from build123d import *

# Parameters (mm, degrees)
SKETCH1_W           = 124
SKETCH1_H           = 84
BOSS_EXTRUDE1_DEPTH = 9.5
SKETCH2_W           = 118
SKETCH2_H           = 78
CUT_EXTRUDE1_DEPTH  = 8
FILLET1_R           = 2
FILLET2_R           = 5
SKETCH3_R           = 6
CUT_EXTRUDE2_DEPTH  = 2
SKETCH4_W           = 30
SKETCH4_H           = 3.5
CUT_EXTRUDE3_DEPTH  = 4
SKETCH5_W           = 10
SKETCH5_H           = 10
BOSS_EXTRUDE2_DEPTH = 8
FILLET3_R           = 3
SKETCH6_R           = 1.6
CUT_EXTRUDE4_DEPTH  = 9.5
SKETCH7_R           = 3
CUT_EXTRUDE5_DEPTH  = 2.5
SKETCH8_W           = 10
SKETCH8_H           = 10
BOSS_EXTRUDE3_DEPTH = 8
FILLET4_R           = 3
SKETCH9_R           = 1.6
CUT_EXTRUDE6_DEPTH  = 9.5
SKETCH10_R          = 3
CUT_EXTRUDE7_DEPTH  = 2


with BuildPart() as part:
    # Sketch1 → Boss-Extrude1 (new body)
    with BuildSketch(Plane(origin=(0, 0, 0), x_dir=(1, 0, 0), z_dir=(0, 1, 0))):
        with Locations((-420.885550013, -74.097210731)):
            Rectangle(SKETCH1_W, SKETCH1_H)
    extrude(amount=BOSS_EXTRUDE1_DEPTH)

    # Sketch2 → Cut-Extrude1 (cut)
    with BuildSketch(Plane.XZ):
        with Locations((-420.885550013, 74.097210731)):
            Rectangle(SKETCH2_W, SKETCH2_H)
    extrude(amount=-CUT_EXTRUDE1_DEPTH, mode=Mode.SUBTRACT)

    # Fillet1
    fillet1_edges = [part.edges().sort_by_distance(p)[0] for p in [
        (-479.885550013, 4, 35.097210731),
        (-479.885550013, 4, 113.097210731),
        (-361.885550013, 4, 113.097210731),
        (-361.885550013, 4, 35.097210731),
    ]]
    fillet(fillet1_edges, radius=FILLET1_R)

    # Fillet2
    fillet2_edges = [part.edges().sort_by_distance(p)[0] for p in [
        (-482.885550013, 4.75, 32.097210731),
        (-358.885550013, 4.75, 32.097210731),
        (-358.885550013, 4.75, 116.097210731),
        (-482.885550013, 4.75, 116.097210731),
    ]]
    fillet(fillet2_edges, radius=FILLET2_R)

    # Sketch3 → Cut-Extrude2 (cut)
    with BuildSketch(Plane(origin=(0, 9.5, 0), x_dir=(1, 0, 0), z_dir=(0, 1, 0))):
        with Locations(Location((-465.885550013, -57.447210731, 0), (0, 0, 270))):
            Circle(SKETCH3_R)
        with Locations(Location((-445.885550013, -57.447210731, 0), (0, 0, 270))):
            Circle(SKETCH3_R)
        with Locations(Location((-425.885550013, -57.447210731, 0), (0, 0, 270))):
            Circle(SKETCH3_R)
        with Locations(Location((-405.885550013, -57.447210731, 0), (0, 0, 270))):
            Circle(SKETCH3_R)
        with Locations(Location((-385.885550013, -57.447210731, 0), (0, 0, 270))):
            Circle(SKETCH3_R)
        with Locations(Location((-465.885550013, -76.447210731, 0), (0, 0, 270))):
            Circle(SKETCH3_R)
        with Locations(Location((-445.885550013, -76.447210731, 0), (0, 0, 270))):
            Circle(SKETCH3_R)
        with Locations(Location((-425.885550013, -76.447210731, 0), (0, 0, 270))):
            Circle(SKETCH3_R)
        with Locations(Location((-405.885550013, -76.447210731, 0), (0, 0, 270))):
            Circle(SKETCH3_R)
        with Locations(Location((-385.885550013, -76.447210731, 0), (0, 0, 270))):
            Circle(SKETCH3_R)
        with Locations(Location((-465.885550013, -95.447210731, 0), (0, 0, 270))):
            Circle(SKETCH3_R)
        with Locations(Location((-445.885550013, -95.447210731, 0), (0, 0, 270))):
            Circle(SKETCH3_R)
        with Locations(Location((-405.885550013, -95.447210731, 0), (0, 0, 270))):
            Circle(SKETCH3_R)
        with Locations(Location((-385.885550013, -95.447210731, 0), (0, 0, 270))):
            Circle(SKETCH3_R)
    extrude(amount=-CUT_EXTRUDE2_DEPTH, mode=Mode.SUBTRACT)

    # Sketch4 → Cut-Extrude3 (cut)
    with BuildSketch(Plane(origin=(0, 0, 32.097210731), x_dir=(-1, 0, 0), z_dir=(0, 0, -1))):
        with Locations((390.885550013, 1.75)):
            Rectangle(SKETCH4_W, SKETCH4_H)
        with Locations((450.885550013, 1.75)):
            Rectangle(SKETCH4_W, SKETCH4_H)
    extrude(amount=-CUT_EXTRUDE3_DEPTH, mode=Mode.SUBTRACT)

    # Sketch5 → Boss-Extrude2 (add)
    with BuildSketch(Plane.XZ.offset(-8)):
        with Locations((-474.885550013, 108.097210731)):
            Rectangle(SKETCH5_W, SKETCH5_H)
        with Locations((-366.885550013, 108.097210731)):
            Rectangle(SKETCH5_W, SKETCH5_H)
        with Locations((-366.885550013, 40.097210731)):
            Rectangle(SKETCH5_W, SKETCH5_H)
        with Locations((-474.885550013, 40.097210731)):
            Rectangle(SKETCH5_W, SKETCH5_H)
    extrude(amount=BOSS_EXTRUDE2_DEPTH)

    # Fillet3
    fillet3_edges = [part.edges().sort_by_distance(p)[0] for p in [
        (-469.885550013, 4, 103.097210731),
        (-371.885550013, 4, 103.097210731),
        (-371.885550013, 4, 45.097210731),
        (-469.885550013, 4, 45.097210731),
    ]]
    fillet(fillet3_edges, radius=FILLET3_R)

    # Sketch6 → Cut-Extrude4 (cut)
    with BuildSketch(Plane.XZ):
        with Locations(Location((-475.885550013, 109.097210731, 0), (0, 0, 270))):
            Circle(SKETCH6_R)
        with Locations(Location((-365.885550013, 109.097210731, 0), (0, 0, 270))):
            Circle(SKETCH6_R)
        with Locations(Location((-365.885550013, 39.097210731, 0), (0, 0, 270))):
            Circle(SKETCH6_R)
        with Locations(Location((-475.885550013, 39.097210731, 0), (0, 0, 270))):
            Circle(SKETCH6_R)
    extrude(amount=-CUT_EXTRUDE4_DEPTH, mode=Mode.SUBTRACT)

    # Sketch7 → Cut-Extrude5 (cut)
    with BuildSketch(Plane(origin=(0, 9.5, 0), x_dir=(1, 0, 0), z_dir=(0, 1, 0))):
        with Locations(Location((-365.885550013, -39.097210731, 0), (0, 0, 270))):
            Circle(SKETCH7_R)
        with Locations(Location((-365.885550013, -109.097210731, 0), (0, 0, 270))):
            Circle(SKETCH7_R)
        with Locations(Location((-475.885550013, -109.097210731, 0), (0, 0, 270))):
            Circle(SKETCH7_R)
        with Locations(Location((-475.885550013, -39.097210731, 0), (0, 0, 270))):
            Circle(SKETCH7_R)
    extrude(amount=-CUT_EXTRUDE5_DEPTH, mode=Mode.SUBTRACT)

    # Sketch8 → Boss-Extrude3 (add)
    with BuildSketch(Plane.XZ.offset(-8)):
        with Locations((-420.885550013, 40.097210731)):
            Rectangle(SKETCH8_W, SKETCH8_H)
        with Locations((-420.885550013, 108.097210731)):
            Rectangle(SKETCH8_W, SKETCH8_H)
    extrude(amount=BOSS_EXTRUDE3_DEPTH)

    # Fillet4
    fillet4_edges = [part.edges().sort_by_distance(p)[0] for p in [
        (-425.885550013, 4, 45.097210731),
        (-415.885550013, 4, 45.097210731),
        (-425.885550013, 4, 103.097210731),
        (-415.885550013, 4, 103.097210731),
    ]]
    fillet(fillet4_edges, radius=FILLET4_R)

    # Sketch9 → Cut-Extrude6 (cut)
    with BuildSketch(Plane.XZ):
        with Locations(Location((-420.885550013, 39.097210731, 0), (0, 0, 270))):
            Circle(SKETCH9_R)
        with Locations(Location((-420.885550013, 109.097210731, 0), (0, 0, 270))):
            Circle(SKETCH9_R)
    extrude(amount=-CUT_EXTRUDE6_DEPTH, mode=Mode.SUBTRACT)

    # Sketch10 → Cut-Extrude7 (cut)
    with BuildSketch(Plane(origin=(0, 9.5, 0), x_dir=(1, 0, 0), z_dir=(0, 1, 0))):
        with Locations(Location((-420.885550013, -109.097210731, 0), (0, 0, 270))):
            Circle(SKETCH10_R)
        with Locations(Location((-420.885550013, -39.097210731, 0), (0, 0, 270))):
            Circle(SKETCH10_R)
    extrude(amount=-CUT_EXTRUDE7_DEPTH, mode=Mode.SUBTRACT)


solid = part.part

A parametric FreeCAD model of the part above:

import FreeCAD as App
import Part
import Sketcher
Q = App.Units.Quantity


def edges_at(feature, points):
    """Names of the edges that pass closest to the given points."""
    edges = feature.Shape.Edges
    near = lambda p: min(range(len(edges)), key=lambda i: edges[i].distToShape(Part.Vertex(*p))[0])
    return sorted({f"Edge{near(p) + 1}" for p in points})


def add_polygon(sketch, points):
    """Adds a closed chain of lines whose ends are joined by coincident constraints."""
    first, n = sketch.GeometryCount, len(points)
    for a, b in zip(points, points[1:] + points[:1]):
        sketch.addGeometry(Part.LineSegment(App.Vector(*a, 0), App.Vector(*b, 0)), False)
    for i in range(n):
        sketch.addConstraint(Sketcher.Constraint("Coincident", first + i, 2, first + (i + 1) % n, 1))

doc = App.newDocument("Part")
body = doc.addObject("PartDesign::Body", "Body")

# Sketch on XZ plane
sketch1 = doc.addObject("Sketcher::SketchObject", "Sketch")
body.addObject(sketch1)
sketch1.AttachmentSupport = (doc.XZ_Plane, [""])
sketch1.MapMode = "FlatFace"
add_polygon(sketch1, [(-483, 32), (-483, 116), (-359, 116), (-359, 32)])  # lines 0-3
sketch1.addConstraint([
    Sketcher.Constraint("Vertical", 0),
    Sketcher.Constraint("Horizontal", 1),
    Sketcher.Constraint("Vertical", 2),
    Sketcher.Constraint("Horizontal", 3),
    Sketcher.Constraint("DistanceX", 1, 1, 1, 2, Q("124 mm")),
    Sketcher.Constraint("DistanceY", 0, 1, 0, 2, Q("84 mm")),
    Sketcher.Constraint("DistanceX", 0, 2, -1, 1, Q("482.88555 mm")),
    Sketcher.Constraint("DistanceY", -1, 1, 0, 2, Q("116.097211 mm")),
])
pad1 = doc.addObject("PartDesign::Pad", "Pad")
body.addObject(pad1)
pad1.Profile = sketch1
pad1.Length = 9.5
pad1.Reversed = True

# Sketch on XZ plane
sketch2 = doc.addObject("Sketcher::SketchObject", "Sketch001")
body.addObject(sketch2)
sketch2.AttachmentSupport = (doc.XZ_Plane, [""])
sketch2.MapMode = "FlatFace"
add_polygon(sketch2, [(-480, 113), (-480, 35), (-362, 35), (-362, 113)])  # lines 0-3
sketch2.addConstraint([
    Sketcher.Constraint("Vertical", 0),
    Sketcher.Constraint("Horizontal", 1),
    Sketcher.Constraint("Vertical", 2),
    Sketcher.Constraint("Horizontal", 3),
    Sketcher.Constraint("DistanceX", 1, 1, 1, 2, Q("118 mm")),
    Sketcher.Constraint("DistanceY", 0, 2, 0, 1, Q("78 mm")),
    Sketcher.Constraint("DistanceX", 0, 2, -1, 1, Q("479.88555 mm")),
    Sketcher.Constraint("DistanceY", -1, 1, 0, 2, Q("35.097211 mm")),
])
pocket1 = doc.addObject("PartDesign::Pocket", "Pocket")
body.addObject(pocket1)
pocket1.Profile = sketch2
pocket1.Length = 8
doc.recompute()

fillet = doc.addObject("PartDesign::Fillet", "Fillet")
body.addObject(fillet)
fillet.Base = (pocket1, edges_at(pocket1, [
    (-479.886, 4, 35.097),
    (-479.886, 4, 113.097),
    (-361.886, 4, 113.097),
    (-361.886, 4, 35.097),
]))
fillet.Radius = 2
doc.recompute()

fillet2 = doc.addObject("PartDesign::Fillet", "Fillet001")
body.addObject(fillet2)
fillet2.Base = (fillet, edges_at(fillet, [
    (-482.886, 4.75, 32.097),
    (-358.886, 4.75, 32.097),
    (-358.886, 4.75, 116.097),
    (-482.886, 4.75, 116.097),
]))
fillet2.Radius = 5

# Sketch on XZ plane
sketch3 = doc.addObject("Sketcher::SketchObject", "Sketch002")
body.addObject(sketch3)
sketch3.AttachmentSupport = (doc.XZ_Plane, [""])
sketch3.MapMode = "FlatFace"
sketch3.AttachmentOffset = App.Placement(App.Vector(0, 0, -9.5), App.Rotation())
sketch3.addGeometry([
    Part.Circle(App.Vector(-466, 57, 0), App.Vector(0, 0, 1), 6),  # 0
    Part.Circle(App.Vector(-446, 57, 0), App.Vector(0, 0, 1), 6),  # 1
    Part.Circle(App.Vector(-426, 57, 0), App.Vector(0, 0, 1), 6),  # 2
    Part.Circle(App.Vector(-406, 57, 0), App.Vector(0, 0, 1), 6),  # 3
    Part.Circle(App.Vector(-386, 57, 0), App.Vector(0, 0, 1), 6),  # 4
    Part.Circle(App.Vector(-466, 76, 0), App.Vector(0, 0, 1), 6),  # 5
    Part.Circle(App.Vector(-446, 76, 0), App.Vector(0, 0, 1), 6),  # 6
    Part.Circle(App.Vector(-426, 76, 0), App.Vector(0, 0, 1), 6),  # 7
    Part.Circle(App.Vector(-406, 76, 0), App.Vector(0, 0, 1), 6),  # 8
    Part.Circle(App.Vector(-386, 76, 0), App.Vector(0, 0, 1), 6),  # 9
    Part.Circle(App.Vector(-466, 95, 0), App.Vector(0, 0, 1), 6),  # 10
    Part.Circle(App.Vector(-446, 95, 0), App.Vector(0, 0, 1), 6),  # 11
    Part.Circle(App.Vector(-406, 95, 0), App.Vector(0, 0, 1), 6),  # 12
    Part.Circle(App.Vector(-386, 95, 0), App.Vector(0, 0, 1), 6),  # 13
], False)
sketch3.addConstraint([
    Sketcher.Constraint("Equal", 0, 1),
    Sketcher.Constraint("Equal", 1, 2),
    Sketcher.Constraint("Equal", 2, 3),
    Sketcher.Constraint("Equal", 3, 4),
    Sketcher.Constraint("Equal", 4, 5),
    Sketcher.Constraint("Equal", 5, 6),
    Sketcher.Constraint("Equal", 6, 7),
    Sketcher.Constraint("Equal", 7, 8),
    Sketcher.Constraint("Equal", 8, 9),
    Sketcher.Constraint("Equal", 9, 10),
    Sketcher.Constraint("Equal", 10, 11),
    Sketcher.Constraint("Equal", 11, 12),
    Sketcher.Constraint("Equal", 12, 13),
    Sketcher.Constraint("Horizontal", 0, 3, 1, 3),
    Sketcher.Constraint("Horizontal", 1, 3, 2, 3),
    Sketcher.Constraint("Horizontal", 2, 3, 3, 3),
    Sketcher.Constraint("Horizontal", 3, 3, 4, 3),
    Sketcher.Constraint("Horizontal", 5, 3, 6, 3),
    Sketcher.Constraint("Horizontal", 6, 3, 7, 3),
    Sketcher.Constraint("Horizontal", 7, 3, 8, 3),
    Sketcher.Constraint("Horizontal", 8, 3, 9, 3),
    Sketcher.Constraint("Horizontal", 10, 3, 11, 3),
    Sketcher.Constraint("Horizontal", 11, 3, 12, 3),
    Sketcher.Constraint("Horizontal", 12, 3, 13, 3),
    Sketcher.Constraint("Vertical", 0, 3, 5, 3),
    Sketcher.Constraint("Vertical", 1, 3, 6, 3),
    Sketcher.Constraint("Vertical", 2, 3, 7, 3),
    Sketcher.Constraint("Vertical", 3, 3, 8, 3),
    Sketcher.Constraint("Vertical", 4, 3, 9, 3),
    Sketcher.Constraint("Vertical", 5, 3, 10, 3),
    Sketcher.Constraint("Vertical", 6, 3, 11, 3),
    Sketcher.Constraint("Vertical", 8, 3, 12, 3),
    Sketcher.Constraint("Vertical", 9, 3, 13, 3),
    Sketcher.Constraint("Diameter", 0, Q("12 mm")),
    Sketcher.Constraint("DistanceX", 0, 3, 1, 3, Q("20 mm")),
    Sketcher.Constraint("DistanceX", 1, 3, 2, 3, Q("20 mm")),
    Sketcher.Constraint("DistanceX", 2, 3, 3, 3, Q("20 mm")),
    Sketcher.Constraint("DistanceX", 3, 3, 4, 3, Q("20 mm")),
    Sketcher.Constraint("DistanceY", 0, 3, 5, 3, Q("19 mm")),
    Sketcher.Constraint("DistanceY", 5, 3, 10, 3, Q("19 mm")),
    Sketcher.Constraint("DistanceX", 0, 3, -1, 1, Q("465.88555 mm")),
    Sketcher.Constraint("DistanceY", -1, 1, 0, 3, Q("57.447211 mm")),
])
pocket2 = doc.addObject("PartDesign::Pocket", "Pocket001")
body.addObject(pocket2)
pocket2.Profile = sketch3
pocket2.Length = 2
pocket2.Reversed = True

# Sketch on XY plane
sketch4 = doc.addObject("Sketcher::SketchObject", "Sketch003")
body.addObject(sketch4)
sketch4.AttachmentSupport = (doc.XY_Plane, [""])
sketch4.MapMode = "FlatFace"
sketch4.AttachmentOffset = App.Placement(App.Vector(0, 0, 32.097211), App.Rotation())
add_polygon(sketch4, [(-375.9, 3.5), (-375.9, 0), (-405.9, 0), (-405.9, 3.5)])  # lines 0-3
add_polygon(sketch4, [(-435.9, 3.5), (-435.9, 0), (-465.9, 0), (-465.9, 3.5)])  # lines 4-7
sketch4.addConstraint([
    Sketcher.Constraint("Vertical", 0),
    Sketcher.Constraint("Horizontal", 1),
    Sketcher.Constraint("Vertical", 2),
    Sketcher.Constraint("Horizontal", 3),
    Sketcher.Constraint("Vertical", 4),
    Sketcher.Constraint("Horizontal", 5),
    Sketcher.Constraint("Vertical", 6),
    Sketcher.Constraint("Horizontal", 7),
    Sketcher.Constraint("PointOnObject", 0, 2, -1),
    Sketcher.Constraint("PointOnObject", 4, 2, -1),
    Sketcher.Constraint("Horizontal", 3, 2, 6, 2),
    Sketcher.Constraint("Equal", 3, 5),
    Sketcher.Constraint("DistanceX", 1, 2, 1, 1, Q("30 mm")),
    Sketcher.Constraint("DistanceY", 0, 2, 0, 1, Q("3.5 mm")),
    Sketcher.Constraint("DistanceX", 4, 2, 1, 2, Q("30 mm")),
    Sketcher.Constraint("DistanceX", 0, 2, -1, 1, Q("375.88555 mm")),
])
pocket3 = doc.addObject("PartDesign::Pocket", "Pocket002")
body.addObject(pocket3)
pocket3.Profile = sketch4
pocket3.Length = 4
pocket3.Reversed = True

# Sketch on XZ plane
sketch5 = doc.addObject("Sketcher::SketchObject", "Sketch004")
body.addObject(sketch5)
sketch5.AttachmentSupport = (doc.XZ_Plane, [""])
sketch5.MapMode = "FlatFace"
sketch5.AttachmentOffset = App.Placement(App.Vector(0, 0, -8), App.Rotation())
add_polygon(sketch5, [(-480, 113), (-480, 103), (-470, 103), (-470, 113)])  # lines 0-3
add_polygon(sketch5, [(-372, 113), (-372, 103), (-362, 103), (-362, 113)])  # lines 4-7
add_polygon(sketch5, [(-372, 45), (-372, 35), (-362, 35), (-362, 45)])  # lines 8-11
add_polygon(sketch5, [(-480, 45), (-480, 35), (-470, 35), (-470, 45)])  # lines 12-15
sketch5.addConstraint([
    Sketcher.Constraint("Vertical", 0),
    Sketcher.Constraint("Horizontal", 1),
    Sketcher.Constraint("Vertical", 2),
    Sketcher.Constraint("Horizontal", 3),
    Sketcher.Constraint("Vertical", 4),
    Sketcher.Constraint("Horizontal", 5),
    Sketcher.Constraint("Vertical", 6),
    Sketcher.Constraint("Horizontal", 7),
    Sketcher.Constraint("Vertical", 8),
    Sketcher.Constraint("Horizontal", 9),
    Sketcher.Constraint("Vertical", 10),
    Sketcher.Constraint("Horizontal", 11),
    Sketcher.Constraint("Vertical", 12),
    Sketcher.Constraint("Horizontal", 13),
    Sketcher.Constraint("Vertical", 14),
    Sketcher.Constraint("Horizontal", 15),
    Sketcher.Constraint("Horizontal", 1, 2, 4, 2),
    Sketcher.Constraint("Horizontal", 3, 2, 6, 2),
    Sketcher.Constraint("Horizontal", 9, 2, 12, 2),
    Sketcher.Constraint("Horizontal", 11, 2, 14, 2),
    Sketcher.Constraint("Vertical", 7, 2, 8, 2),
    Sketcher.Constraint("Vertical", 6, 2, 9, 2),
    Sketcher.Constraint("Vertical", 3, 2, 12, 2),
    Sketcher.Constraint("Vertical", 2, 2, 13, 2),
    Sketcher.Constraint("Equal", 3, 5),
    Sketcher.Constraint("Equal", 15, 0),
    Sketcher.Constraint("Equal", 6, 8),
    Sketcher.Constraint("DistanceX", 1, 1, 1, 2, Q("10 mm")),
    Sketcher.Constraint("DistanceX", 1, 2, 4, 2, Q("98 mm")),
    Sketcher.Constraint("DistanceY", 8, 2, 4, 2, Q("68 mm")),
    Sketcher.Constraint("DistanceX", 0, 2, -1, 1, Q("479.88555 mm")),
    Sketcher.Constraint("DistanceY", -1, 1, 0, 2, Q("103.097211 mm")),
])
pad2 = doc.addObject("PartDesign::Pad", "Pad001")
body.addObject(pad2)
pad2.Profile = sketch5
pad2.Length = 8
doc.recompute()

fillet3 = doc.addObject("PartDesign::Fillet", "Fillet002")
body.addObject(fillet3)
fillet3.Base = (pad2, edges_at(pad2, [
    (-469.886, 4, 103.097),
    (-371.886, 4, 103.097),
    (-371.886, 4, 45.097),
    (-469.886, 4, 45.097),
]))
fillet3.Radius = 3

# Sketch on XZ plane
sketch6 = doc.addObject("Sketcher::SketchObject", "Sketch005")
body.addObject(sketch6)
sketch6.AttachmentSupport = (doc.XZ_Plane, [""])
sketch6.MapMode = "FlatFace"
sketch6.addGeometry([
    Part.Circle(App.Vector(-475.9, 109.1, 0), App.Vector(0, 0, 1), 1.6),
    Part.Circle(App.Vector(-365.9, 109.1, 0), App.Vector(0, 0, 1), 1.6),
    Part.Circle(App.Vector(-365.9, 39.1, 0), App.Vector(0, 0, 1), 1.6),
    Part.Circle(App.Vector(-475.9, 39.1, 0), App.Vector(0, 0, 1), 1.6),
], False)
sketch6.addConstraint([
    Sketcher.Constraint("Equal", 0, 1),
    Sketcher.Constraint("Equal", 1, 2),
    Sketcher.Constraint("Equal", 2, 3),
    Sketcher.Constraint("Horizontal", 0, 3, 1, 3),
    Sketcher.Constraint("Horizontal", 2, 3, 3, 3),
    Sketcher.Constraint("Vertical", 1, 3, 2, 3),
    Sketcher.Constraint("Vertical", 0, 3, 3, 3),
    Sketcher.Constraint("Diameter", 0, Q("3.2 mm")),
    Sketcher.Constraint("DistanceX", 0, 3, 1, 3, Q("110 mm")),
    Sketcher.Constraint("DistanceY", 2, 3, 1, 3, Q("70 mm")),
    Sketcher.Constraint("DistanceX", 0, 3, -1, 1, Q("475.88555 mm")),
    Sketcher.Constraint("DistanceY", -1, 1, 0, 3, Q("109.097211 mm")),
])
pocket4 = doc.addObject("PartDesign::Pocket", "Pocket003")
body.addObject(pocket4)
pocket4.Profile = sketch6
pocket4.Length = 9.5

# Sketch on XZ plane
sketch7 = doc.addObject("Sketcher::SketchObject", "Sketch006")
body.addObject(sketch7)
sketch7.AttachmentSupport = (doc.XZ_Plane, [""])
sketch7.MapMode = "FlatFace"
sketch7.AttachmentOffset = App.Placement(App.Vector(0, 0, -9.5), App.Rotation())
sketch7.addGeometry([
    Part.Circle(App.Vector(-365.9, 39.1, 0), App.Vector(0, 0, 1), 3),
    Part.Circle(App.Vector(-365.9, 109.1, 0), App.Vector(0, 0, 1), 3),
    Part.Circle(App.Vector(-475.9, 109.1, 0), App.Vector(0, 0, 1), 3),
    Part.Circle(App.Vector(-475.9, 39.1, 0), App.Vector(0, 0, 1), 3),
], False)
sketch7.addConstraint([
    Sketcher.Constraint("Equal", 0, 1),
    Sketcher.Constraint("Equal", 1, 2),
    Sketcher.Constraint("Equal", 2, 3),
    Sketcher.Constraint("Horizontal", 1, 3, 2, 3),
    Sketcher.Constraint("Horizontal", 0, 3, 3, 3),
    Sketcher.Constraint("Vertical", 0, 3, 1, 3),
    Sketcher.Constraint("Vertical", 2, 3, 3, 3),
    Sketcher.Constraint("Diameter", 0, Q("6 mm")),
    Sketcher.Constraint("DistanceY", 0, 3, 1, 3, Q("70 mm")),
    Sketcher.Constraint("DistanceX", 2, 3, 1, 3, Q("110 mm")),
    Sketcher.Constraint("DistanceX", 0, 3, -1, 1, Q("365.88555 mm")),
    Sketcher.Constraint("DistanceY", -1, 1, 0, 3, Q("39.097211 mm")),
])
pocket5 = doc.addObject("PartDesign::Pocket", "Pocket004")
body.addObject(pocket5)
pocket5.Profile = sketch7
pocket5.Length = 2.5
pocket5.Reversed = True

# Sketch on XZ plane
sketch8 = doc.addObject("Sketcher::SketchObject", "Sketch007")
body.addObject(sketch8)
sketch8.AttachmentSupport = (doc.XZ_Plane, [""])
sketch8.MapMode = "FlatFace"
sketch8.AttachmentOffset = App.Placement(App.Vector(0, 0, -8), App.Rotation())
add_polygon(sketch8, [(-426, 45), (-426, 35), (-416, 35), (-416, 45)])  # lines 0-3
add_polygon(sketch8, [(-426, 113), (-426, 103), (-416, 103), (-416, 113)])  # lines 4-7
sketch8.addConstraint([
    Sketcher.Constraint("Vertical", 0),
    Sketcher.Constraint("Horizontal", 1),
    Sketcher.Constraint("Vertical", 2),
    Sketcher.Constraint("Horizontal", 3),
    Sketcher.Constraint("Vertical", 4),
    Sketcher.Constraint("Horizontal", 5),
    Sketcher.Constraint("Vertical", 6),
    Sketcher.Constraint("Horizontal", 7),
    Sketcher.Constraint("Vertical", 3, 2, 4, 2),
    Sketcher.Constraint("Vertical", 2, 2, 5, 2),
    Sketcher.Constraint("Equal", 7, 0),
    Sketcher.Constraint("Equal", 2, 4),
    Sketcher.Constraint("DistanceX", 1, 1, 1, 2, Q("10 mm")),
    Sketcher.Constraint("DistanceY", 3, 2, 4, 2, Q("58 mm")),
    Sketcher.Constraint("DistanceX", 0, 2, -1, 1, Q("425.88555 mm")),
    Sketcher.Constraint("DistanceY", -1, 1, 0, 2, Q("35.097211 mm")),
])
pad3 = doc.addObject("PartDesign::Pad", "Pad002")
body.addObject(pad3)
pad3.Profile = sketch8
pad3.Length = 8
doc.recompute()

fillet4 = doc.addObject("PartDesign::Fillet", "Fillet003")
body.addObject(fillet4)
fillet4.Base = (pad3, edges_at(pad3, [
    (-425.886, 4, 45.097),
    (-415.886, 4, 45.097),
    (-425.886, 4, 103.097),
    (-415.886, 4, 103.097),
]))
fillet4.Radius = 3

# Sketch on XZ plane
sketch9 = doc.addObject("Sketcher::SketchObject", "Sketch008")
body.addObject(sketch9)
sketch9.AttachmentSupport = (doc.XZ_Plane, [""])
sketch9.MapMode = "FlatFace"
sketch9.addGeometry([
    Part.Circle(App.Vector(-420.9, 39.1, 0), App.Vector(0, 0, 1), 1.6),
    Part.Circle(App.Vector(-420.9, 109.1, 0), App.Vector(0, 0, 1), 1.6),
], False)
sketch9.addConstraint([
    Sketcher.Constraint("Equal", 0, 1),
    Sketcher.Constraint("Vertical", 0, 3, 1, 3),
    Sketcher.Constraint("Diameter", 0, Q("3.2 mm")),
    Sketcher.Constraint("DistanceY", 0, 3, 1, 3, Q("70 mm")),
    Sketcher.Constraint("DistanceX", 0, 3, -1, 1, Q("420.88555 mm")),
    Sketcher.Constraint("DistanceY", -1, 1, 0, 3, Q("39.097211 mm")),
])
pocket6 = doc.addObject("PartDesign::Pocket", "Pocket005")
body.addObject(pocket6)
pocket6.Profile = sketch9
pocket6.Length = 9.5

# Sketch on XZ plane
sketch10 = doc.addObject("Sketcher::SketchObject", "Sketch009")
body.addObject(sketch10)
sketch10.AttachmentSupport = (doc.XZ_Plane, [""])
sketch10.MapMode = "FlatFace"
sketch10.AttachmentOffset = App.Placement(App.Vector(0, 0, -9.5), App.Rotation())
sketch10.addGeometry([
    Part.Circle(App.Vector(-420.9, 109.1, 0), App.Vector(0, 0, 1), 3),
    Part.Circle(App.Vector(-420.9, 39.1, 0), App.Vector(0, 0, 1), 3),
], False)
sketch10.addConstraint([
    Sketcher.Constraint("Equal", 0, 1),
    Sketcher.Constraint("Vertical", 0, 3, 1, 3),
    Sketcher.Constraint("Diameter", 0, Q("6 mm")),
    Sketcher.Constraint("DistanceY", 1, 3, 0, 3, Q("70 mm")),
    Sketcher.Constraint("DistanceX", 0, 3, -1, 1, Q("420.88555 mm")),
    Sketcher.Constraint("DistanceY", -1, 1, 0, 3, Q("109.097211 mm")),
])
pocket7 = doc.addObject("PartDesign::Pocket", "Pocket006")
body.addObject(pocket7)
pocket7.Profile = sketch10
pocket7.Length = 2
pocket7.Reversed = True

doc.recompute()
